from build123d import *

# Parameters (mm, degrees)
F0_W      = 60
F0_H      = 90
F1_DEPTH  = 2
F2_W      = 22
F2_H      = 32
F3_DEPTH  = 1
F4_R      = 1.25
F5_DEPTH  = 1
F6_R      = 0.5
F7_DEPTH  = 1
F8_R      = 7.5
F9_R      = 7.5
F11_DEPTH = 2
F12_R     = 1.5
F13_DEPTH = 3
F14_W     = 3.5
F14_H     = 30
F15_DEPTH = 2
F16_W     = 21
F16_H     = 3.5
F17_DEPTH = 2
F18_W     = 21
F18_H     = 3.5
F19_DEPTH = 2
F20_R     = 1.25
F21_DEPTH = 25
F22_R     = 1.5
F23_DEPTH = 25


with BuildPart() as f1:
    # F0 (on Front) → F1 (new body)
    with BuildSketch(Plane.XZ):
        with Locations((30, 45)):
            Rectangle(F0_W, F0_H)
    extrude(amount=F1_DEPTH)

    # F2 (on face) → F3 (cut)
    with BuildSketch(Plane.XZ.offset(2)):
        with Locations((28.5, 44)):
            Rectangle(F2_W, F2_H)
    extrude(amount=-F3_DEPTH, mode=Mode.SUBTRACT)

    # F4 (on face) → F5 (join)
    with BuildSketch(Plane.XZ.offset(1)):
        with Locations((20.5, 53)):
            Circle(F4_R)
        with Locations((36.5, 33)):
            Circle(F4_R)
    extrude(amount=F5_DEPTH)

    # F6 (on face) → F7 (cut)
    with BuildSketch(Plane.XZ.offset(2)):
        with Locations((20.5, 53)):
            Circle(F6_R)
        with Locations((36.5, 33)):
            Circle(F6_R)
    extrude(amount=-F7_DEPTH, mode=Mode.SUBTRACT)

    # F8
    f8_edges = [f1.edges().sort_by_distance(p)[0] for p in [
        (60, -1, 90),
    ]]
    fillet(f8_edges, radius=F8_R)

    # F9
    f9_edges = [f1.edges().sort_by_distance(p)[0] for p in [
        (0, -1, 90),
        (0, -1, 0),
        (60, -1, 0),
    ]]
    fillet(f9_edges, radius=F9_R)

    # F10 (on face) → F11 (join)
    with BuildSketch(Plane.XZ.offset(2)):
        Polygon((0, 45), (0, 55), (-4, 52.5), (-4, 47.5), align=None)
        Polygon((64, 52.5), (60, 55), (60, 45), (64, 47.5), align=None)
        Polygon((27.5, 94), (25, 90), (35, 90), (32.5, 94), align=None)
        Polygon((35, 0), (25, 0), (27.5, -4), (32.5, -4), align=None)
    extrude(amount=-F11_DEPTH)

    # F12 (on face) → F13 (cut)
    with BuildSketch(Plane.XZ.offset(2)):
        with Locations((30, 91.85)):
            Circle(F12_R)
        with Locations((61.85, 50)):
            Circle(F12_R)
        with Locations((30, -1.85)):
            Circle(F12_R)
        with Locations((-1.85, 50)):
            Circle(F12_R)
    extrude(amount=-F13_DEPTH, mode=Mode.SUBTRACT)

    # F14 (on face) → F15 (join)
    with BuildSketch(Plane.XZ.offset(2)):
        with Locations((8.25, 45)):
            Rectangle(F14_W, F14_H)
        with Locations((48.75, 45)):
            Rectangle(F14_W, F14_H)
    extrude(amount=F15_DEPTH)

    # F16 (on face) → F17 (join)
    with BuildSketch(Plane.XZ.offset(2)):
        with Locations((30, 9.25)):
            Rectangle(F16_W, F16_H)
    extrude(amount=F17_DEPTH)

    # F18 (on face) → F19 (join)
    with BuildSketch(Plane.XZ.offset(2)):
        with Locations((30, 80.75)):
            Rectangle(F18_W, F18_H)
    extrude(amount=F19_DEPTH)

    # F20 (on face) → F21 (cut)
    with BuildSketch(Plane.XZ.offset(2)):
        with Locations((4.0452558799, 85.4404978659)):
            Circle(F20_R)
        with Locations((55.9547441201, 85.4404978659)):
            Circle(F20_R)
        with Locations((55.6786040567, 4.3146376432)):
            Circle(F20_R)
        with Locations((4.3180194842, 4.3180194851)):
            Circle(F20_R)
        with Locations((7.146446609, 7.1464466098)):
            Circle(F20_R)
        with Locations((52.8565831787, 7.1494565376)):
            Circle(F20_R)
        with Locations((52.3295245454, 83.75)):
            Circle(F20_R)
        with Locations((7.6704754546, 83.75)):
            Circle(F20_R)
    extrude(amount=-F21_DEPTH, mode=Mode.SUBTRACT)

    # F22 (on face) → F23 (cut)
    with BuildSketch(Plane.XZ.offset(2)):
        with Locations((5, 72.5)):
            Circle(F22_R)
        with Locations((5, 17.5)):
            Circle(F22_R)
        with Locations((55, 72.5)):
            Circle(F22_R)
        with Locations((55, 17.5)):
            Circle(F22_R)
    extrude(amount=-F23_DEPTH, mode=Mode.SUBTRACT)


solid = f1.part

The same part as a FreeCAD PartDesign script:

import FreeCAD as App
import Part
import Sketcher
Q = App.Units.Quantity


def edges_at(feature, points):
    """Names of the edges that pass closest to the given points."""
    edges = feature.Shape.Edges
    near = lambda p: min(range(len(edges)), key=lambda i: edges[i].distToShape(Part.Vertex(*p))[0])
    return sorted({f"Edge{near(p) + 1}" for p in points})

doc = App.newDocument("Part")
body = doc.addObject("PartDesign::Body", "Body")

sketch1 = body.newObject("Sketcher::SketchObject", "Sketch")
sketch1.AttachmentSupport = (doc.getObject("XZ_Plane"), [""])
sketch1.MapMode = "FlatFace"
sketch1.addGeometry([
    Part.LineSegment(App.Vector(0, 90, 0), App.Vector(0, 0, 0)),
    Part.LineSegment(App.Vector(0, 0, 0), App.Vector(60, 0, 0)),
    Part.LineSegment(App.Vector(60, 0, 0), App.Vector(60, 90, 0)),
    Part.LineSegment(App.Vector(60, 90, 0), App.Vector(0, 90, 0)),
], False)
sketch1.addConstraint([
    Sketcher.Constraint("Coincident", 0, 2, 1, 1),
    Sketcher.Constraint("Coincident", 1, 2, 2, 1),
    Sketcher.Constraint("Coincident", 2, 2, 3, 1),
    Sketcher.Constraint("Coincident", 3, 2, 0, 1),
    Sketcher.Constraint("Vertical", 0),
    Sketcher.Constraint("Horizontal", 1),
    Sketcher.Constraint("Vertical", 2),
    Sketcher.Constraint("Horizontal", 3),
    Sketcher.Constraint("Coincident", 0, 2, -1, 1),
    Sketcher.Constraint("DistanceX", 1, 1, 1, 2, Q("60 mm")),
    Sketcher.Constraint("DistanceY", 0, 2, 0, 1, Q("90 mm")),
])
pad1 = body.newObject("PartDesign::Pad", "Pad")
pad1.Profile = sketch1
pad1.Length = 2

sketch2 = body.newObject("Sketcher::SketchObject", "Sketch001")
sketch2.AttachmentSupport = (doc.getObject("XZ_Plane"), [""])
sketch2.MapMode = "FlatFace"
sketch2.AttachmentOffset = App.Placement(App.Vector(0, 0, 2), App.Rotation())
sketch2.addGeometry([
    Part.LineSegment(App.Vector(18, 60, 0), App.Vector(18, 28, 0)),
    Part.LineSegment(App.Vector(18, 28, 0), App.Vector(40, 28, 0)),
    Part.LineSegment(App.Vector(40, 28, 0), App.Vector(40, 60, 0)),
    Part.LineSegment(App.Vector(40, 60, 0), App.Vector(18, 60, 0)),
], False)
sketch2.addConstraint([
    Sketcher.Constraint("Coincident", 0, 2, 1, 1),
    Sketcher.Constraint("Coincident", 1, 2, 2, 1),
    Sketcher.Constraint("Coincident", 2, 2, 3, 1),
    Sketcher.Constraint("Coincident", 3, 2, 0, 1),
    Sketcher.Constraint("Vertical", 0),
    Sketcher.Constraint("Horizontal", 1),
    Sketcher.Constraint("Vertical", 2),
    Sketcher.Constraint("Horizontal", 3),
    Sketcher.Constraint("DistanceX", 1, 1, 1, 2, Q("22 mm")),
    Sketcher.Constraint("DistanceY", 0, 2, 0, 1, Q("32 mm")),
    Sketcher.Constraint("DistanceY", -1, 1, 0, 2, Q("28 mm")),
    Sketcher.Constraint("DistanceX", -1, 1, 0, 2, Q("17.5 mm")),
])
pocket1 = body.newObject("PartDesign::Pocket", "Pocket")
pocket1.Profile = sketch2
pocket1.Length = 1

sketch3 = body.newObject("Sketcher::SketchObject", "Sketch002")
sketch3.AttachmentSupport = (doc.getObject("XZ_Plane"), [""])
sketch3.MapMode = "FlatFace"
sketch3.AttachmentOffset = App.Placement(App.Vector(0, 0, 1), App.Rotation())
sketch3.addGeometry([
    Part.Circle(App.Vector(20.5, 53, 0), App.Vector(0, 0, 1), 1.2),
    Part.Circle(App.Vector(36.5, 33, 0), App.Vector(0, 0, 1), 1.2),
], False)
sketch3.addConstraint([
    Sketcher.Constraint("Equal", 0, 1),
    Sketcher.Constraint("Diameter", 0, Q("2.5 mm")),
    Sketcher.Constraint("DistanceY", -1, 1, 0, 3, Q("53 mm")),
    Sketcher.Constraint("DistanceY", -1, 1, 1, 3, Q("33 mm")),
    Sketcher.Constraint("DistanceX", 0, 3, 1, 3, Q("16 mm")),
    Sketcher.Constraint("DistanceX", -1, 1, 0, 3, Q("20.5 mm")),
])
pad2 = body.newObject("PartDesign::Pad", "Pad001")
pad2.Profile = sketch3
pad2.Length = 1

sketch4 = body.newObject("Sketcher::SketchObject", "Sketch003")
sketch4.AttachmentSupport = (doc.getObject("XZ_Plane"), [""])
sketch4.MapMode = "FlatFace"
sketch4.AttachmentOffset = App.Placement(App.Vector(0, 0, 2), App.Rotation())
sketch4.addGeometry([
    Part.Circle(App.Vector(20.5, 53, 0), App.Vector(0, 0, 1), 0.5),
    Part.Circle(App.Vector(36.5, 33, 0), App.Vector(0, 0, 1), 0.5),
], False)
sketch4.addConstraint([
    Sketcher.Constraint("Equal", 0, 1),
    Sketcher.Constraint("Diameter", 0, Q("1 mm")),
    Sketcher.Constraint("DistanceY", -1, 1, 0, 3, Q("53 mm")),
    Sketcher.Constraint("DistanceY", -1, 1, 1, 3, Q("33 mm")),
    Sketcher.Constraint("DistanceX", 0, 3, 1, 3, Q("16 mm")),
    Sketcher.Constraint("DistanceX", -1, 1, 0, 3, Q("20.5 mm")),
])
pocket2 = body.newObject("PartDesign::Pocket", "Pocket001")
pocket2.Profile = sketch4
pocket2.Length = 1
doc.recompute()

fillet = body.newObject("PartDesign::Fillet", "Fillet")
fillet.Base = (pocket2, edges_at(pocket2, [(60, -1, 90)]))
fillet.Radius = 7.5
doc.recompute()

fillet2 = body.newObject("PartDesign::Fillet", "Fillet001")
fillet2.Base = (fillet, edges_at(fillet, [(0, -1, 90), (0, -1, 0), (60, -1, 0)]))
fillet2.Radius = 7.5

sketch5 = body.newObject("Sketcher::SketchObject", "Sketch004")
sketch5.AttachmentSupport = (doc.getObject("XZ_Plane"), [""])
sketch5.MapMode = "FlatFace"
sketch5.AttachmentOffset = App.Placement(App.Vector(0, 0, 2), App.Rotation())
sketch5.addGeometry([
    Part.LineSegment(App.Vector(0, 45, 0), App.Vector(0, 55, 0)),
    Part.LineSegment(App.Vector(0, 55, 0), App.Vector(-4, 52.5, 0)),
    Part.LineSegment(App.Vector(-4, 52.5, 0), App.Vector(-4, 47.5, 0)),
    Part.LineSegment(App.Vector(-4, 47.5, 0), App.Vector(0, 45, 0)),
    Part.LineSegment(App.Vector(64, 52.5, 0), App.Vector(60, 55, 0)),
    Part.LineSegment(App.Vector(60, 55, 0), App.Vector(60, 45, 0)),
    Part.LineSegment(App.Vector(60, 45, 0), App.Vector(64, 47.5, 0)),
    Part.LineSegment(App.Vector(64, 47.5, 0), App.Vector(64, 52.5, 0)),
    Part.LineSegment(App.Vector(27.5, 94, 0), App.Vector(25, 90, 0)),
    Part.LineSegment(App.Vector(25, 90, 0), App.Vector(35, 90, 0)),
    Part.LineSegment(App.Vector(35, 90, 0), App.Vector(32.5, 94, 0)),
    Part.LineSegment(App.Vector(32.5, 94, 0), App.Vector(27.5, 94, 0)),
    Part.LineSegment(App.Vector(35, 0, 0), App.Vector(25, 0, 0)),
    Part.LineSegment(App.Vector(25, 0, 0), App.Vector(27.5, -4, 0)),
    Part.LineSegment(App.Vector(27.5, -4, 0), App.Vector(32.5, -4, 0)),
    Part.LineSegment(App.Vector(32.5, -4, 0), App.Vector(35, 0, 0)),
], False)
sketch5.addConstraint([
    Sketcher.Constraint("Coincident", 0, 2, 1, 1),
    Sketcher.Constraint("Coincident", 1, 2, 2, 1),
    Sketcher.Constraint("Coincident", 2, 2, 3, 1),
    Sketcher.Constraint("Coincident", 3, 2, 0, 1),
    Sketcher.Constraint("Coincident", 4, 2, 5, 1),
    Sketcher.Constraint("Coincident", 5, 2, 6, 1),
    Sketcher.Constraint("Coincident", 6, 2, 7, 1),
    Sketcher.Constraint("Coincident", 7, 2, 4, 1),
    Sketcher.Constraint("Coincident", 8, 2, 9, 1),
    Sketcher.Constraint("Coincident", 9, 2, 10, 1),
    Sketcher.Constraint("Coincident", 10, 2, 11, 1),
    Sketcher.Constraint("Coincident", 11, 2, 8, 1),
    Sketcher.Constraint("Coincident", 12, 2, 13, 1),
    Sketcher.Constraint("Coincident", 13, 2, 14, 1),
    Sketcher.Constraint("Coincident", 14, 2, 15, 1),
    Sketcher.Constraint("Coincident", 15, 2, 12, 1),
    Sketcher.Constraint("Vertical", 0),
    Sketcher.Constraint("Vertical", 2),
    Sketcher.Constraint("Vertical", 5),
    Sketcher.Constraint("Vertical", 7),
    Sketcher.Constraint("Horizontal", 9),
    Sketcher.Constraint("Horizontal", 11),
    Sketcher.Constraint("Horizontal", 12),
    Sketcher.Constraint("Horizontal", 14),
    Sketcher.Constraint("PointOnObject", 0, 2, -2),
    Sketcher.Constraint("PointOnObject", 12, 2, -1),
    Sketcher.Constraint("Parallel", 3, 4),
    Sketcher.Constraint("Parallel", 1, 6),
    Sketcher.Constraint("Perpendicular", 4, 8),
    Sketcher.Constraint("Perpendicular", 6, 10),
    Sketcher.Constraint("Parallel", 10, 13),
    Sketcher.Constraint("Parallel", 8, 15),
    Sketcher.Constraint("Horizontal", 0, 2, 4, 2),
    Sketcher.Constraint("Horizontal", 3, 2, 5, 2),
    Sketcher.Constraint("Horizontal", 2, 2, 6, 2),
    Sketcher.Constraint("Horizontal", 1, 2, 7, 2),
    Sketcher.Constraint("Vertical", 8, 2, 12, 2),
    Sketcher.Constraint("Vertical", 11, 2, 13, 2),
    Sketcher.Constraint("Vertical", 10, 2, 14, 2),
    Sketcher.Constraint("Equal", 12, 0),
    Sketcher.Constraint("Equal", 14, 2),
    Sketcher.Constraint("DistanceX", 9, 1, 9, 2, Q("10 mm")),
    Sketcher.Constraint("DistanceX", 11, 2, 11, 1, Q("5 mm")),
    Sketcher.Constraint("DistanceY", -1, 1, 0, 2, Q("55 mm")),
    Sketcher.Constraint("DistanceX", 1, 2, -1, 1, Q("4 mm")),
    Sketcher.Constraint("DistanceX", -1, 1, 4, 2, Q("60 mm")),
    Sketcher.Constraint("DistanceX", -1, 1, 8, 2, Q("25 mm")),
    Sketcher.Constraint("DistanceY", -1, 1, 8, 2, Q("90 mm")),
])
pad3 = body.newObject("PartDesign::Pad", "Pad002")
pad3.Profile = sketch5
pad3.Length = 2
pad3.Reversed = True

sketch6 = body.newObject("Sketcher::SketchObject", "Sketch005")
sketch6.AttachmentSupport = (doc.getObject("XZ_Plane"), [""])
sketch6.MapMode = "FlatFace"
sketch6.AttachmentOffset = App.Placement(App.Vector(0, 0, 2), App.Rotation())
sketch6.addGeometry([
    Part.Circle(App.Vector(30, 91.8, 0), App.Vector(0, 0, 1), 1.5),
    Part.Circle(App.Vector(61.9, 50, 0), App.Vector(0, 0, 1), 1.5),
    Part.Circle(App.Vector(30, -1.9, 0), App.Vector(0, 0, 1), 1.5),
    Part.Circle(App.Vector(-1.9, 50, 0), App.Vector(0, 0, 1), 1.5),
], False)
sketch6.addConstraint([
    Sketcher.Constraint("Equal", 0, 1),
    Sketcher.Constraint("Equal", 1, 2),
    Sketcher.Constraint("Equal", 2, 3),
    Sketcher.Constraint("Horizontal", 1, 3, 3, 3),
    Sketcher.Constraint("Vertical", 0, 3, 2, 3),
    Sketcher.Constraint("Diameter", 0, Q("3 mm")),
    Sketcher.Constraint("DistanceX", -1, 1, 0, 3, Q("30 mm")),
    Sketcher.Constraint("DistanceY", -1, 1, 1, 3, Q("50 mm")),
    Sketcher.Constraint("DistanceY", 2, 3, 0, 3, Q("93.7 mm")),
    Sketcher.Constraint("DistanceX", 3, 3, 1, 3, Q("63.7 mm")),
    Sketcher.Constraint("DistanceY", -1, 1, 0, 3, Q("91.85 mm")),
    Sketcher.Constraint("DistanceX", -1, 1, 1, 3, Q("61.85 mm")),
])
pocket3 = body.newObject("PartDesign::Pocket", "Pocket002")
pocket3.Profile = sketch6
pocket3.Length = 3

sketch7 = body.newObject("Sketcher::SketchObject", "Sketch006")
sketch7.AttachmentSupport = (doc.getObject("XZ_Plane"), [""])
sketch7.MapMode = "FlatFace"
sketch7.AttachmentOffset = App.Placement(App.Vector(0, 0, 2), App.Rotation())
sketch7.addGeometry([
    Part.LineSegment(App.Vector(6.5, 60, 0), App.Vector(6.5, 30, 0)),
    Part.LineSegment(App.Vector(6.5, 30, 0), App.Vector(10, 30, 0)),
    Part.LineSegment(App.Vector(10, 30, 0), App.Vector(10, 60, 0)),
    Part.LineSegment(App.Vector(10, 60, 0), App.Vector(6.5, 60, 0)),
    Part.LineSegment(App.Vector(47, 60, 0), App.Vector(47, 30, 0)),
    Part.LineSegment(App.Vector(47, 30, 0), App.Vector(50.5, 30, 0)),
    Part.LineSegment(App.Vector(50.5, 30, 0), App.Vector(50.5, 60, 0)),
    Part.LineSegment(App.Vector(50.5, 60, 0), App.Vector(47, 60, 0)),
], False)
sketch7.addConstraint([
    Sketcher.Constraint("Coincident", 0, 2, 1, 1),
    Sketcher.Constraint("Coincident", 1, 2, 2, 1),
    Sketcher.Constraint("Coincident", 2, 2, 3, 1),
    Sketcher.Constraint("Coincident", 3, 2, 0, 1),
    Sketcher.Constraint("Coincident", 4, 2, 5, 1),
    Sketcher.Constraint("Coincident", 5, 2, 6, 1),
    Sketcher.Constraint("Coincident", 6, 2, 7, 1),
    Sketcher.Constraint("Coincident", 7, 2, 4, 1),
    Sketcher.Constraint("Vertical", 0),
    Sketcher.Constraint("Horizontal", 1),
    Sketcher.Constraint("Vertical", 2),
    Sketcher.Constraint("Horizontal", 3),
    Sketcher.Constraint("Vertical", 4),
    Sketcher.Constraint("Horizontal", 5),
    Sketcher.Constraint("Vertical", 6),
    Sketcher.Constraint("Horizontal", 7),
    Sketcher.Constraint("Horizontal", 1, 2, 4, 2),
    Sketcher.Constraint("Horizontal", 3, 2, 6, 2),
    Sketcher.Constraint("Equal", 3, 5),
    Sketcher.Constraint("DistanceY", 0, 2, 0, 1, Q("30 mm")),
    Sketcher.Constraint("DistanceX", 1, 1, 1, 2, Q("3.5 mm")),
    Sketcher.Constraint("DistanceY", -1, 1, 0, 2, Q("30 mm")),
    Sketcher.Constraint("DistanceX", -1, 1, 1, 2, Q("10 mm")),
    Sketcher.Constraint("DistanceX", -1, 1, 4, 2, Q("47 mm")),
])
pad4 = body.newObject("PartDesign::Pad", "Pad003")
pad4.Profile = sketch7
pad4.Length = 2

sketch8 = body.newObject("Sketcher::SketchObject", "Sketch007")
sketch8.AttachmentSupport = (doc.getObject("XZ_Plane"), [""])
sketch8.MapMode = "FlatFace"
sketch8.AttachmentOffset = App.Placement(App.Vector(0, 0, 2), App.Rotation())
sketch8.addGeometry([
    Part.LineSegment(App.Vector(19.5, 11, 0), App.Vector(19.5, 7.5, 0)),
    Part.LineSegment(App.Vector(19.5, 7.5, 0), App.Vector(40.5, 7.5, 0)),
    Part.LineSegment(App.Vector(40.5, 7.5, 0), App.Vector(40.5, 11, 0)),
    Part.LineSegment(App.Vector(40.5, 11, 0), App.Vector(19.5, 11, 0)),
], False)
sketch8.addConstraint([
    Sketcher.Constraint("Coincident", 0, 2, 1, 1),
    Sketcher.Constraint("Coincident", 1, 2, 2, 1),
    Sketcher.Constraint("Coincident", 2, 2, 3, 1),
    Sketcher.Constraint("Coincident", 3, 2, 0, 1),
    Sketcher.Constraint("Vertical", 0),
    Sketcher.Constraint("Horizontal", 1),
    Sketcher.Constraint("Vertical", 2),
    Sketcher.Constraint("Horizontal", 3),
    Sketcher.Constraint("DistanceX", 1, 1, 1, 2, Q("21 mm")),
    Sketcher.Constraint("DistanceY", 0, 2, 0, 1, Q("3.5 mm")),
    Sketcher.Constraint("DistanceY", -1, 1, 2, 2, Q("11 mm")),
    Sketcher.Constraint("DistanceX", -1, 1, 0, 2, Q("19.5 mm")),
])
pad5 = body.newObject("PartDesign::Pad", "Pad004")
pad5.Profile = sketch8
pad5.Length = 2

sketch9 = body.newObject("Sketcher::SketchObject", "Sketch008")
sketch9.AttachmentSupport = (doc.getObject("XZ_Plane"), [""])
sketch9.MapMode = "FlatFace"
sketch9.AttachmentOffset = App.Placement(App.Vector(0, 0, 2), App.Rotation())
sketch9.addGeometry([
    Part.LineSegment(App.Vector(19.5, 82.5, 0), App.Vector(19.5, 79, 0)),
    Part.LineSegment(App.Vector(19.5, 79, 0), App.Vector(40.5, 79, 0)),
    Part.LineSegment(App.Vector(40.5, 79, 0), App.Vector(40.5, 82.5, 0)),
    Part.LineSegment(App.Vector(40.5, 82.5, 0), App.Vector(19.5, 82.5, 0)),
], False)
sketch9.addConstraint([
    Sketcher.Constraint("Coincident", 0, 2, 1, 1),
    Sketcher.Constraint("Coincident", 1, 2, 2, 1),
    Sketcher.Constraint("Coincident", 2, 2, 3, 1),
    Sketcher.Constraint("Coincident", 3, 2, 0, 1),
    Sketcher.Constraint("Vertical", 0),
    Sketcher.Constraint("Horizontal", 1),
    Sketcher.Constraint("Vertical", 2),
    Sketcher.Constraint("Horizontal", 3),
    Sketcher.Constraint("DistanceX", 1, 1, 1, 2, Q("21 mm")),
    Sketcher.Constraint("DistanceY", 0, 2, 0, 1, Q("3.5 mm")),
    Sketcher.Constraint("DistanceY", -1, 1, 0, 2, Q("79 mm")),
    Sketcher.Constraint("DistanceX", -1, 1, 0, 2, Q("19.5 mm")),
])
pad6 = body.newObject("PartDesign::Pad", "Pad005")
pad6.Profile = sketch9
pad6.Length = 2

sketch10 = body.newObject("Sketcher::SketchObject", "Sketch009")
sketch10.AttachmentSupport = (doc.getObject("XZ_Plane"), [""])
sketch10.MapMode = "FlatFace"
sketch10.AttachmentOffset = App.Placement(App.Vector(0, 0, 2), App.Rotation())
sketch10.addGeometry([
    Part.Circle(App.Vector(4, 85.4, 0), App.Vector(0, 0, 1), 1.2),
    Part.Circle(App.Vector(56, 85.4, 0), App.Vector(0, 0, 1), 1.2),
    Part.Circle(App.Vector(55.7, 4.3, 0), App.Vector(0, 0, 1), 1.2),
    Part.Circle(App.Vector(4.3, 4.3, 0), App.Vector(0, 0, 1), 1.2),
    Part.Circle(App.Vector(7.1, 7.1, 0), App.Vector(0, 0, 1), 1.2),
    Part.Circle(App.Vector(52.9, 7.1, 0), App.Vector(0, 0, 1), 1.2),
    Part.Circle(App.Vector(52.3, 83.8, 0), App.Vector(0, 0, 1), 1.2),
    Part.Circle(App.Vector(7.7, 83.8, 0), App.Vector(0, 0, 1), 1.2),
], False)
sketch10.addConstraint([
    Sketcher.Constraint("Equal", 0, 1),
    Sketcher.Constraint("Equal", 1, 2),
    Sketcher.Constraint("Equal", 2, 3),
    Sketcher.Constraint("Equal", 3, 4),
    Sketcher.Constraint("Equal", 4, 5),
    Sketcher.Constraint("Equal", 5, 6),
    Sketcher.Constraint("Equal", 6, 7),
    Sketcher.Constraint("Horizontal", 0, 3, 1, 3),
    Sketcher.Constraint("Horizontal", 6, 3, 7, 3),
    Sketcher.Constraint("Diameter", 0, Q("2.5 mm")),
    Sketcher.Constraint("DistanceY", -1, 1, 6, 3, Q("83.75 mm")),
    Sketcher.Constraint("DistanceX", -1, 1, 3, 3, Q("4.318019 mm")),
    Sketcher.Constraint("DistanceY", -1, 1, 3, 3, Q("4.318019 mm")),
    Sketcher.Constraint("DistanceX", 0, 3, 1, 3, Q("51.909488 mm")),
    Sketcher.Constraint("DistanceX", 2, 3, 1, 3, Q("0.27614 mm")),
    Sketcher.Constraint("DistanceY", 2, 3, 1, 3, Q("81.12586 mm")),
    Sketcher.Constraint("DistanceY", 2, 3, 3, 3, Q("0.003382 mm")),
    Sketcher.Constraint("DistanceY", 2, 3, 4, 3, Q("2.831809 mm")),
    Sketcher.Constraint("DistanceX", 0, 3, 4, 3, Q("3.101191 mm")),
    Sketcher.Constraint("DistanceX", 5, 3, 2, 3, Q("2.822021 mm")),
    Sketcher.Constraint("DistanceY", 2, 3, 5, 3, Q("2.834819 mm")),
    Sketcher.Constraint("DistanceX", 6, 3, 1, 3, Q("3.62522 mm")),
    Sketcher.Constraint("DistanceX", 0, 3, 7, 3, Q("3.62522 mm")),
    Sketcher.Constraint("DistanceX", -1, 1, 0, 3, Q("4.045256 mm")),
])
pocket4 = body.newObject("PartDesign::Pocket", "Pocket003")
pocket4.Profile = sketch10
pocket4.Length = 25

sketch11 = body.newObject("Sketcher::SketchObject", "Sketch010")
sketch11.AttachmentSupport = (doc.getObject("XZ_Plane"), [""])
sketch11.MapMode = "FlatFace"
sketch11.AttachmentOffset = App.Placement(App.Vector(0, 0, 2), App.Rotation())
sketch11.addGeometry([
    Part.Circle(App.Vector(5, 72.5, 0), App.Vector(0, 0, 1), 1.5),
    Part.Circle(App.Vector(5, 17.5, 0), App.Vector(0, 0, 1), 1.5),
    Part.Circle(App.Vector(55, 72.5, 0), App.Vector(0, 0, 1), 1.5),
    Part.Circle(App.Vector(55, 17.5, 0), App.Vector(0, 0, 1), 1.5),
], False)
sketch11.addConstraint([
    Sketcher.Constraint("Equal", 0, 1),
    Sketcher.Constraint("Equal", 1, 2),
    Sketcher.Constraint("Equal", 2, 3),
    Sketcher.Constraint("Horizontal", 0, 3, 2, 3),
    Sketcher.Constraint("Horizontal", 1, 3, 3, 3),
    Sketcher.Constraint("Vertical", 0, 3, 1, 3),
    Sketcher.Constraint("Vertical", 2, 3, 3, 3),
    Sketcher.Constraint("Diameter", 0, Q("3 mm")),
    Sketcher.Constraint("DistanceX", -1, 1, 0, 3, Q("5 mm")),
    Sketcher.Constraint("DistanceX", -1, 1, 2, 3, Q("55 mm")),
    Sketcher.Constraint("DistanceY", 1, 3, 0, 3, Q("55 mm")),
    Sketcher.Constraint("DistanceY", -1, 1, 0, 3, Q("72.5 mm")),
])
pocket5 = body.newObject("PartDesign::Pocket", "Pocket004")
pocket5.Profile = sketch11
pocket5.Length = 25

doc.recompute()
